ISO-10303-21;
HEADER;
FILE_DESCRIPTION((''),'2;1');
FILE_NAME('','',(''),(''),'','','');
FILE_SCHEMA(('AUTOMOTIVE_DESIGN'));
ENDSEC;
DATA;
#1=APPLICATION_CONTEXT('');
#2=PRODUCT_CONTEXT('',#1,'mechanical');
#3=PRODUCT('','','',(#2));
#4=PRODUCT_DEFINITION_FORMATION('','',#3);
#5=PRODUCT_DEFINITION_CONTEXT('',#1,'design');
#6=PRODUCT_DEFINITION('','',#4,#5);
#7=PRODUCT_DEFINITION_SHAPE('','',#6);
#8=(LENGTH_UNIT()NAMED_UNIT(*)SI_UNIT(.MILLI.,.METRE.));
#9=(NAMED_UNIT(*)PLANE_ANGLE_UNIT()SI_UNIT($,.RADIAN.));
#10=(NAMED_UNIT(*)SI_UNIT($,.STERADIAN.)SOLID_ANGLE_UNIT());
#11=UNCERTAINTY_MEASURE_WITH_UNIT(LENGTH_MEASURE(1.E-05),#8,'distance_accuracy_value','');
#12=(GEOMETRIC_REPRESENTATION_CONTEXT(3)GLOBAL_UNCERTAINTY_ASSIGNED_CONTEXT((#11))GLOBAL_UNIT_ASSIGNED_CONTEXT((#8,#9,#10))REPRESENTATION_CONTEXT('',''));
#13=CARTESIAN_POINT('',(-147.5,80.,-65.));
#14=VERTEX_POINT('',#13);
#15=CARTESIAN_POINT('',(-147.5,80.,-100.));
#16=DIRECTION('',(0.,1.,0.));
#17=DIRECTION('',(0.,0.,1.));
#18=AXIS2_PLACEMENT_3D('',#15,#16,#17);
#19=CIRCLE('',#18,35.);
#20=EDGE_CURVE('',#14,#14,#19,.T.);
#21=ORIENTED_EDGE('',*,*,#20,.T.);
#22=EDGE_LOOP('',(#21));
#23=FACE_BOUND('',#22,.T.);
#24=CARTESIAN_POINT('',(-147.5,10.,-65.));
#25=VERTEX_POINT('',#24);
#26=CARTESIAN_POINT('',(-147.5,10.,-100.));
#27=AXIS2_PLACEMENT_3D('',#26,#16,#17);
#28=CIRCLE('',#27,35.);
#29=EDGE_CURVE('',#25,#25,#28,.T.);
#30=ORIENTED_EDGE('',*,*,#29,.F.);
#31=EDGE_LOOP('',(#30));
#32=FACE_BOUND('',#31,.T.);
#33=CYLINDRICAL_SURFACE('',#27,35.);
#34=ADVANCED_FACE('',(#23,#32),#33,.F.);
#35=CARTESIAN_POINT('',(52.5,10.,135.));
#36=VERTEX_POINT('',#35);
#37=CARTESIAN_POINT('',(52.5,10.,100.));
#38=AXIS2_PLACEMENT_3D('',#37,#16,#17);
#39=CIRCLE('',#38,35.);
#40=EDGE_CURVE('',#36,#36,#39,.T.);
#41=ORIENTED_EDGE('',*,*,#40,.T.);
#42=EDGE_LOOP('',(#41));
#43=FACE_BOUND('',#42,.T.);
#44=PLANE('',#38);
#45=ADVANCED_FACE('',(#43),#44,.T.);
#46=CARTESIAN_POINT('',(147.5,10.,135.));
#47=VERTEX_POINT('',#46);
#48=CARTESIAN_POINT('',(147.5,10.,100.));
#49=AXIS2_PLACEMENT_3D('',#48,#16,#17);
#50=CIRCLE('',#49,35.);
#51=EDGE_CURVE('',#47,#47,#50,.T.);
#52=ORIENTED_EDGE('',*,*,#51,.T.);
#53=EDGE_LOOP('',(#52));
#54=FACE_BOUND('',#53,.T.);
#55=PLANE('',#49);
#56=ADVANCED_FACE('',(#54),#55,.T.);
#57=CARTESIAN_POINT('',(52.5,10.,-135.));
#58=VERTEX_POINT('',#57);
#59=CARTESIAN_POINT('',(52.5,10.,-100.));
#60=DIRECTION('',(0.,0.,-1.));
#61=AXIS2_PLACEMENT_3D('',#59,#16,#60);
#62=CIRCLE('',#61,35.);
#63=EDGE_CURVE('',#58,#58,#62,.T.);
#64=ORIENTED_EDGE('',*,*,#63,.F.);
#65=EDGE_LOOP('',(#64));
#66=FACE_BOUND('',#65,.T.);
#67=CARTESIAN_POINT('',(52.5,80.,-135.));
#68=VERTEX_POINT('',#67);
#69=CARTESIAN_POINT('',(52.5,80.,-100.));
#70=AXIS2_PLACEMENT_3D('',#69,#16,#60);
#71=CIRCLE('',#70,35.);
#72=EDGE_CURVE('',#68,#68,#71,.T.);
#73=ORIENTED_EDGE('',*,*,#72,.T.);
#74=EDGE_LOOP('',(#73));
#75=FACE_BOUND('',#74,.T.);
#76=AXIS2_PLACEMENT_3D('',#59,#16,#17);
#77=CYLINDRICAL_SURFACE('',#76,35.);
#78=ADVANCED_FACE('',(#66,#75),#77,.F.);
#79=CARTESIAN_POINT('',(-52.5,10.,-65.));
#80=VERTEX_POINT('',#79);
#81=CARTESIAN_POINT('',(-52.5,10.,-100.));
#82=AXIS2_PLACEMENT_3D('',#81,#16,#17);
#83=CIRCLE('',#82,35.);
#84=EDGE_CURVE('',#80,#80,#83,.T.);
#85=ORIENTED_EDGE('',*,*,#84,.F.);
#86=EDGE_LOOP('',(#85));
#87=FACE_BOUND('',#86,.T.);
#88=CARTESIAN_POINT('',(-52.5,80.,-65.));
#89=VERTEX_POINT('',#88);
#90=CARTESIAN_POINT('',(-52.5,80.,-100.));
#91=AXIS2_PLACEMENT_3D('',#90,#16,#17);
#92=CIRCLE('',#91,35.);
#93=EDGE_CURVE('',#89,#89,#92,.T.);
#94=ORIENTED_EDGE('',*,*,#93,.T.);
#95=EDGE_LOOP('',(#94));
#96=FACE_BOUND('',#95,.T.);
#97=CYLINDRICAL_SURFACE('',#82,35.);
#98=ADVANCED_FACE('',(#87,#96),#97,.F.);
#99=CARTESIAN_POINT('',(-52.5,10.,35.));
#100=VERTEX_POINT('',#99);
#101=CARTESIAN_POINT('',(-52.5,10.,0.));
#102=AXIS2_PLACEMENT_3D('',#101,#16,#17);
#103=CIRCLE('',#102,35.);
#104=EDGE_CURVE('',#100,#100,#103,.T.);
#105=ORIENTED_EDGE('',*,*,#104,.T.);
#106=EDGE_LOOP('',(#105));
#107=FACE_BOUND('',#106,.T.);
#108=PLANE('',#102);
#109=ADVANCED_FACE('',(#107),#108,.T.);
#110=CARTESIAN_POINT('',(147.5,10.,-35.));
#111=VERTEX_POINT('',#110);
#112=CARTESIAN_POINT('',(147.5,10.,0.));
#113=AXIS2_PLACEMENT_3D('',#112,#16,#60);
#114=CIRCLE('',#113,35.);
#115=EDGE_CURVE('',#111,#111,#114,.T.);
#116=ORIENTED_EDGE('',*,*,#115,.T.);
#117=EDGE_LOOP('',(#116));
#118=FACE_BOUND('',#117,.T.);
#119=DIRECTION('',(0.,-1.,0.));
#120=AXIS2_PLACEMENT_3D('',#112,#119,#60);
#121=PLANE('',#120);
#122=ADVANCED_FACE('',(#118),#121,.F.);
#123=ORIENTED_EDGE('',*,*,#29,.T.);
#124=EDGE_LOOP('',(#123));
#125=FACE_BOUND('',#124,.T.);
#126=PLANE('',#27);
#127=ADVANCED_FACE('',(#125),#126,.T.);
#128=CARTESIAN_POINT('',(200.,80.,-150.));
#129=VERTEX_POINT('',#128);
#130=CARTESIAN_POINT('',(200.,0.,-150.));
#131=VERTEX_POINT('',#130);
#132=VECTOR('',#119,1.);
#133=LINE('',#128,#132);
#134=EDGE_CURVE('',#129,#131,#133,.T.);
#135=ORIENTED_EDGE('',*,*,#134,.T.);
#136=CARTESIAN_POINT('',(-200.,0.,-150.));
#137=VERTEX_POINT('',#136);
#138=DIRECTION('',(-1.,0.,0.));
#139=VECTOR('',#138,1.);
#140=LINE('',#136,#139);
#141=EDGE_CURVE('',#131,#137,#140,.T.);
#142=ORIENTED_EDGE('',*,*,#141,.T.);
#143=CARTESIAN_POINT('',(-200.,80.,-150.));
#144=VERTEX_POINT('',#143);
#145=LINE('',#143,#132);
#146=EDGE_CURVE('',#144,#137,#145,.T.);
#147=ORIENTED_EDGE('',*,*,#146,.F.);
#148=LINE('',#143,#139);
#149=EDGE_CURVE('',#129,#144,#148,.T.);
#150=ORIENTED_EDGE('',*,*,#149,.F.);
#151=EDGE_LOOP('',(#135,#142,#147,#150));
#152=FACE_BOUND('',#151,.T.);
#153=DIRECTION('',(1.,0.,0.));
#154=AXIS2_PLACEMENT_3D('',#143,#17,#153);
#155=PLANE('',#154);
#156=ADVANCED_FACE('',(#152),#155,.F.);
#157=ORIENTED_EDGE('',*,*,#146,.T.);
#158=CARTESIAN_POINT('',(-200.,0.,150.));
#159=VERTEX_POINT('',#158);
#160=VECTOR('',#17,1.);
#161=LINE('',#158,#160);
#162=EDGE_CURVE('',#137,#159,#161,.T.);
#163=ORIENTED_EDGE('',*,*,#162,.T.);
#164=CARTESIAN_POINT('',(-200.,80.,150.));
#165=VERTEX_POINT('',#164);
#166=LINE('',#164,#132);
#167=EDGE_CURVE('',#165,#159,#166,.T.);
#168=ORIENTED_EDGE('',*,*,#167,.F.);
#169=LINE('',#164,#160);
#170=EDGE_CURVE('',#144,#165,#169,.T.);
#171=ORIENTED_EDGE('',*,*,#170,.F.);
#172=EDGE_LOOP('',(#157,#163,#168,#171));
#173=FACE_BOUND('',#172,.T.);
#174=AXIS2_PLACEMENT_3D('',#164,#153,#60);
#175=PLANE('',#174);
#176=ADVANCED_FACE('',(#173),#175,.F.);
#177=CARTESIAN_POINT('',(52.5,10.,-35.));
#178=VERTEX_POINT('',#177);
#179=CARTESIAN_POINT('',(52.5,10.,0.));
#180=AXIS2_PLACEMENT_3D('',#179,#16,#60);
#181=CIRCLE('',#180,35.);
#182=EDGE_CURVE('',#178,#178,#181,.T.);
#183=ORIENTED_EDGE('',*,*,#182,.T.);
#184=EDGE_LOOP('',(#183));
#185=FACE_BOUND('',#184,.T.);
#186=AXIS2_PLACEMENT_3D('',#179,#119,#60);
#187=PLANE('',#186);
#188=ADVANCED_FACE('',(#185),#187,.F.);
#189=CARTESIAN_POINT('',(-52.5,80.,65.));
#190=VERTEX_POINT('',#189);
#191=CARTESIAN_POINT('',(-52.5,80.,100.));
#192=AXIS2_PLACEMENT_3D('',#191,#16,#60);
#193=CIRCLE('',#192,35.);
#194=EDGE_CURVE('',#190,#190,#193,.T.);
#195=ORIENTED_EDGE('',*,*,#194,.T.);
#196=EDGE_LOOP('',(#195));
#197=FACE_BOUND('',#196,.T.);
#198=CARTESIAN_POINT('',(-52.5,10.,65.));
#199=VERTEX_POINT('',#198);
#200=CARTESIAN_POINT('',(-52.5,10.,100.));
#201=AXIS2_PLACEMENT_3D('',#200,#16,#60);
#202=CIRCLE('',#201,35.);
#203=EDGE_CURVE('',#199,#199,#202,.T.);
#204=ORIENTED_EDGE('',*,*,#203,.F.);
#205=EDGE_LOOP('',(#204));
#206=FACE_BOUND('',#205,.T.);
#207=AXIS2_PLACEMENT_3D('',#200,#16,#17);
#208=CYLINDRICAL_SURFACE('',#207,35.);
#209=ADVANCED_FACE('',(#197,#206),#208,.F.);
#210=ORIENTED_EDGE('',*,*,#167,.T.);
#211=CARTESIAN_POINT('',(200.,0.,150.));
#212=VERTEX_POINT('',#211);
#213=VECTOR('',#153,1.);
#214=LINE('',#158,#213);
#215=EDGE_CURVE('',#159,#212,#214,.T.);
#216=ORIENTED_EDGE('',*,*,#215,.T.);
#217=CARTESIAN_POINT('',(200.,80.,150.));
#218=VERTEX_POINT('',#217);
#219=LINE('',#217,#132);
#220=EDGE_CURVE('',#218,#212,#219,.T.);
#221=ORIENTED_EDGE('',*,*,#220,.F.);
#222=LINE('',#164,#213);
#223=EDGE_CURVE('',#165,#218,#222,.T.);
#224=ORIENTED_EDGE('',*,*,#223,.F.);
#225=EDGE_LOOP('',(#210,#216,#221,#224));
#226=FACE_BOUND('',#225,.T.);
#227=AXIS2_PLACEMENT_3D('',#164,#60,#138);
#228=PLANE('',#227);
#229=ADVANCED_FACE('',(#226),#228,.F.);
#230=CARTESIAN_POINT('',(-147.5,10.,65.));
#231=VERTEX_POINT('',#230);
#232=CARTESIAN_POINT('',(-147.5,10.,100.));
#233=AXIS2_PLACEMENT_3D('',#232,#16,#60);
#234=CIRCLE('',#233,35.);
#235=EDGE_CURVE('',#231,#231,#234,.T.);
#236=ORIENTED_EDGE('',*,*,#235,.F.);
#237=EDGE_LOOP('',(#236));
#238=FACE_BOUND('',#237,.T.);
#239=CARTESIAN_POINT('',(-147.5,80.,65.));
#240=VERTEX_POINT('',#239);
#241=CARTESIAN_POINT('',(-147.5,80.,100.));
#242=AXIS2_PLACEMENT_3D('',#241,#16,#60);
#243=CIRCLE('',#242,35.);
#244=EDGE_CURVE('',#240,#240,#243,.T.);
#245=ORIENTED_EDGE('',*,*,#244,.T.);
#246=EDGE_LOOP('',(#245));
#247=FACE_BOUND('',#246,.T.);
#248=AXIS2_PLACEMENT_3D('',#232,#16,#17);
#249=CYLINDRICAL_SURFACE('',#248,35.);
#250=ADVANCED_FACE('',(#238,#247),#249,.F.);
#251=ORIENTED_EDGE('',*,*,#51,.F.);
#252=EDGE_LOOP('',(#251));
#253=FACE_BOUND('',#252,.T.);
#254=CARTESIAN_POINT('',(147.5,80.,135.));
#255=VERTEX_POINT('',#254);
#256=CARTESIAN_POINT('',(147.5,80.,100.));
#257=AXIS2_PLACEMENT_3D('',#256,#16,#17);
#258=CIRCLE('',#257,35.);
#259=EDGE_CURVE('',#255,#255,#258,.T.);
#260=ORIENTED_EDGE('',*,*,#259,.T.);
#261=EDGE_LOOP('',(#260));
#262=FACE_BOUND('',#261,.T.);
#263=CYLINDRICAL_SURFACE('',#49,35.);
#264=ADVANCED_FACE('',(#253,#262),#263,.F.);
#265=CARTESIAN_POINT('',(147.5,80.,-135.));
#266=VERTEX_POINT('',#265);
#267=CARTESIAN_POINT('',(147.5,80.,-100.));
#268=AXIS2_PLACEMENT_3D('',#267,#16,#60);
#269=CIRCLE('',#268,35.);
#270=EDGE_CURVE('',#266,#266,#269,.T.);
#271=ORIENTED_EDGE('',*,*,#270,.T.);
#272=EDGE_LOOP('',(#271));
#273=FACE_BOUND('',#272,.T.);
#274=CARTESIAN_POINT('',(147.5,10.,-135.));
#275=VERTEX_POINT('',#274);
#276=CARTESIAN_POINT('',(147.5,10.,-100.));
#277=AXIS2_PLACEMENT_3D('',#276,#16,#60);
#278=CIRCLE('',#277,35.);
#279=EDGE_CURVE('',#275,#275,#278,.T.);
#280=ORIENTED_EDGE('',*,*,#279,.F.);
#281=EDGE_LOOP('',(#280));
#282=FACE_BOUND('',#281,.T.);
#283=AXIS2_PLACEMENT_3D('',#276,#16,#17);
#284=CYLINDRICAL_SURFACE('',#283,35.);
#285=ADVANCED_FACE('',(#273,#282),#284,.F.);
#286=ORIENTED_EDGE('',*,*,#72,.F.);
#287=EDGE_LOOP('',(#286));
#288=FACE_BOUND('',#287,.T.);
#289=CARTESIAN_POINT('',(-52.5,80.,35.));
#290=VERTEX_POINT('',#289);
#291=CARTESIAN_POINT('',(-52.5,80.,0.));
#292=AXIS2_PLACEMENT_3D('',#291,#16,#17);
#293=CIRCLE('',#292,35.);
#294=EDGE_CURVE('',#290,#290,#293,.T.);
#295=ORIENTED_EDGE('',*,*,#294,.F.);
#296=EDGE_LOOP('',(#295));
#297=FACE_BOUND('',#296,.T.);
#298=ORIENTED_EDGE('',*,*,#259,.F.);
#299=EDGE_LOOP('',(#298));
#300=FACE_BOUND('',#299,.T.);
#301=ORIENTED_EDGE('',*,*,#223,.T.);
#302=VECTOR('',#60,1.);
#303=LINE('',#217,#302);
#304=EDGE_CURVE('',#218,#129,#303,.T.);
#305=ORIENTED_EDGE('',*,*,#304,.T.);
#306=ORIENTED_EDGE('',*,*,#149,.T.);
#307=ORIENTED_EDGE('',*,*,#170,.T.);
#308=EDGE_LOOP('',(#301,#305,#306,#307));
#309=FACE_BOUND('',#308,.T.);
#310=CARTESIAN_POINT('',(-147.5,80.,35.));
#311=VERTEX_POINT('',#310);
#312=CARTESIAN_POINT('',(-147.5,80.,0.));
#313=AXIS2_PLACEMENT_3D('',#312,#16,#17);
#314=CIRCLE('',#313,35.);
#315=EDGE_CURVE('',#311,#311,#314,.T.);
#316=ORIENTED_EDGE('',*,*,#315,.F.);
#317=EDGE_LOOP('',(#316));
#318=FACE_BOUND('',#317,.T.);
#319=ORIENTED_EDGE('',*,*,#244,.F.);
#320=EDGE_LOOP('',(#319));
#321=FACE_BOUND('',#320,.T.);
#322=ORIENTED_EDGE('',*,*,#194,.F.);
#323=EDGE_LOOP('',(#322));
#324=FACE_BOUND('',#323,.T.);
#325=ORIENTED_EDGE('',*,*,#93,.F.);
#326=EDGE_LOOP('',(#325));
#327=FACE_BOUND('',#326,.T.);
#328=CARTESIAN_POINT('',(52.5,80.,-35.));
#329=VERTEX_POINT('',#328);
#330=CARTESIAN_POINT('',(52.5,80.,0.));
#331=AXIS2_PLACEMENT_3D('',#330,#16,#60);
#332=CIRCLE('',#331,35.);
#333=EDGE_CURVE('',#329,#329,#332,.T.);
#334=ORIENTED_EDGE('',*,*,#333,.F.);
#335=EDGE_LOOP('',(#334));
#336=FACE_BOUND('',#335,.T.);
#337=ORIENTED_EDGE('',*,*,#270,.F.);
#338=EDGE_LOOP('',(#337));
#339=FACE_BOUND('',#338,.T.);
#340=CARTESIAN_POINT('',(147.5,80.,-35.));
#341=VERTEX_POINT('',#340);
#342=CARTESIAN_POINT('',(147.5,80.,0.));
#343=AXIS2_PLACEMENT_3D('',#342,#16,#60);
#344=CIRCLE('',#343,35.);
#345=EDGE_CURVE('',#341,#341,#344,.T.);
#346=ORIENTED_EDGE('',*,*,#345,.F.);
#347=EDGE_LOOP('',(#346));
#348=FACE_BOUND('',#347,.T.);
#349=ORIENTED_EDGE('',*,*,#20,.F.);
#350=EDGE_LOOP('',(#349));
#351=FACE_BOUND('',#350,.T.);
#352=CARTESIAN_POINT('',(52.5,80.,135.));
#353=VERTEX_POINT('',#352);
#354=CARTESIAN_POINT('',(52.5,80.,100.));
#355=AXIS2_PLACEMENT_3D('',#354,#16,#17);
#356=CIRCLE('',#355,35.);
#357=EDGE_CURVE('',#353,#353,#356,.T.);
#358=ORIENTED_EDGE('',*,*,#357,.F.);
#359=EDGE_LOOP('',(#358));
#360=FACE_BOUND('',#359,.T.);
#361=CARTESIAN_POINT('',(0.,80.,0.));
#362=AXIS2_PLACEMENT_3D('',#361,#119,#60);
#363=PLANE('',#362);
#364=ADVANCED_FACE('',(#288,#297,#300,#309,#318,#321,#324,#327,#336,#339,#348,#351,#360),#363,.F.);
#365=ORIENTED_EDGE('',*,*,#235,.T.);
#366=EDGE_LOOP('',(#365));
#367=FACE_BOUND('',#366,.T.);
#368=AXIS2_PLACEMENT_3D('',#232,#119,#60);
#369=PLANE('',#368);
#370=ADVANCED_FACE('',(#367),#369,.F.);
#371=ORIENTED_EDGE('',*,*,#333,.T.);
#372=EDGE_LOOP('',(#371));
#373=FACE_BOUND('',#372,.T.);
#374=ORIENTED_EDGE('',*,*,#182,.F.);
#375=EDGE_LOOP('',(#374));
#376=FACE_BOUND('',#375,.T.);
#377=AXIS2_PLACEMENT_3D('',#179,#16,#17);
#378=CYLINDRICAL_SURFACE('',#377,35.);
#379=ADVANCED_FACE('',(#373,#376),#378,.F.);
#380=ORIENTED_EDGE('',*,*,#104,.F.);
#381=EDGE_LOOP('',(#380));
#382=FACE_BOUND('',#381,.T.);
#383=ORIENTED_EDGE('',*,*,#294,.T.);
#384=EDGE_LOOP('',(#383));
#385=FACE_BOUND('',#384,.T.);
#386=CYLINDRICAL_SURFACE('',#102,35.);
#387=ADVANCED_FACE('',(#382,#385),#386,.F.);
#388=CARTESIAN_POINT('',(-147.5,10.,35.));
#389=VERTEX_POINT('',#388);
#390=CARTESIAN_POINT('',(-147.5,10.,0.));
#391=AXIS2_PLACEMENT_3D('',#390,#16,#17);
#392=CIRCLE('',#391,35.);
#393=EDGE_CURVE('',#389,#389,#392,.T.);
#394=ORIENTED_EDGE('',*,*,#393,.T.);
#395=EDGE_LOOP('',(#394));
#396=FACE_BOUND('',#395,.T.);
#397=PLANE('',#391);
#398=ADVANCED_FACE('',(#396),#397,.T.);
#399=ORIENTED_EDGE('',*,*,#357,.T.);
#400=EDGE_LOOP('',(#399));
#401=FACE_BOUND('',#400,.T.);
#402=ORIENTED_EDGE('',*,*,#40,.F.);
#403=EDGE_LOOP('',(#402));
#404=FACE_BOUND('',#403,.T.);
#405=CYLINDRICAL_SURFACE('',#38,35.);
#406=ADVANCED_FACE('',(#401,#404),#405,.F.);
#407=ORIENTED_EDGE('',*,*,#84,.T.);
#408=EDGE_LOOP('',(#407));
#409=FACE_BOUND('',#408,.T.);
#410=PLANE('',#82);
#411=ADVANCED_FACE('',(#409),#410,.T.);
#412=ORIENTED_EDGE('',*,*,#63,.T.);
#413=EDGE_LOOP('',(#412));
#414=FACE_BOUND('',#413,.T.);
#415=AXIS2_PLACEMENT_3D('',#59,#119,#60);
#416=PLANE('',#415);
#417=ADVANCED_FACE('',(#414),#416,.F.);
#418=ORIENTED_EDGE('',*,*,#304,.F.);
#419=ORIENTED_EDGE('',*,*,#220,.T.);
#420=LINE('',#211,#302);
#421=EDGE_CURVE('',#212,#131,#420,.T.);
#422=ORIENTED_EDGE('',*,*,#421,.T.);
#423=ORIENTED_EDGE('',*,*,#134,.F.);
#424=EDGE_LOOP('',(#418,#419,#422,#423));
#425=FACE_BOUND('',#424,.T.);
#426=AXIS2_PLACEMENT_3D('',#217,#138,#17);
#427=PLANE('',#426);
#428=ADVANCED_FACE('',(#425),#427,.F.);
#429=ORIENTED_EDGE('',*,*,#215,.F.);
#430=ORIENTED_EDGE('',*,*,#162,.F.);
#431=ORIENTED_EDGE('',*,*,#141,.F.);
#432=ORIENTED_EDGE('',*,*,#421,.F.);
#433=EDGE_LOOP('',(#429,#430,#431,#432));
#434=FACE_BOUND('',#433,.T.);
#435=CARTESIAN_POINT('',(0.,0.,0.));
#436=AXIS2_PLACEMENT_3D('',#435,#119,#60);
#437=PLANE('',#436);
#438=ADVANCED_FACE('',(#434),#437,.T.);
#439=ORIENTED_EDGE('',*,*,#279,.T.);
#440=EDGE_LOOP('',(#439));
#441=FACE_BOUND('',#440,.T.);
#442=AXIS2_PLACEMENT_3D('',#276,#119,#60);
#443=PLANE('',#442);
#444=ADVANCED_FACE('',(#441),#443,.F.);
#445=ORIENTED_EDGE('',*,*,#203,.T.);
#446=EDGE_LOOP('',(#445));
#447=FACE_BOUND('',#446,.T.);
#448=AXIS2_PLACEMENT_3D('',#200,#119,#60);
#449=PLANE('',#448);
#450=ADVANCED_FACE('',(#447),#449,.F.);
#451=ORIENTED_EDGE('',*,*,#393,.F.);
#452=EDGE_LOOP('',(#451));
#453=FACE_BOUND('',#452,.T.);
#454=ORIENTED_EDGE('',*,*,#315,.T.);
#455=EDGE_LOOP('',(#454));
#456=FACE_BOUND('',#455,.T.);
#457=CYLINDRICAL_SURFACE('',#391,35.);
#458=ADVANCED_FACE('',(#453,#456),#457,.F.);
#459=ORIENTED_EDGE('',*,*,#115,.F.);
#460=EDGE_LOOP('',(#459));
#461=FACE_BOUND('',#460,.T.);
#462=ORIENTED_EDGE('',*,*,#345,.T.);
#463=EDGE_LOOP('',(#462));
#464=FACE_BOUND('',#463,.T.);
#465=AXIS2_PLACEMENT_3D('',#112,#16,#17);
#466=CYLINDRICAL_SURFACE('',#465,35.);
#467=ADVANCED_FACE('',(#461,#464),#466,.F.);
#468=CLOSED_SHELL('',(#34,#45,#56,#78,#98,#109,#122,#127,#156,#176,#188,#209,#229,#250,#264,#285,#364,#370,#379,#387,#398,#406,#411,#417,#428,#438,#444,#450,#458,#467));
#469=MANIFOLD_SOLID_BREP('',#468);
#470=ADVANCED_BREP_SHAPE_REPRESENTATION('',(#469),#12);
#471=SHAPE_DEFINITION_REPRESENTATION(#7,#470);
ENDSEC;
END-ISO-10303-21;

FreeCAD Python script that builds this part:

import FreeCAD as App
import Part
import Sketcher
from FreeCAD import Vector
Q = App.Units.Quantity

doc = App.newDocument("Part")
body = doc.addObject("PartDesign::Body", "Body")

# Sketch on XZ plane
sketch1 = body.newObject("Sketcher::SketchObject", "Sketch")
sketch1.AttachmentSupport = (doc.getObject("XZ_Plane"), [""])
sketch1.MapMode = "FlatFace"
sketch1.addGeometry(Part.LineSegment(Vector(-200, -150, 0), Vector(-200, 150, 0)), False)
sketch1.addGeometry(Part.LineSegment(Vector(-200, 150, 0), Vector(200, 150, 0)), False)
sketch1.addGeometry(Part.LineSegment(Vector(200, 150, 0), Vector(200, -150, 0)), False)
sketch1.addGeometry(Part.LineSegment(Vector(200, -150, 0), Vector(-200, -150, 0)), False)
sketch1.addConstraint(Sketcher.Constraint("Coincident", 0, 2, 1, 1))
sketch1.addConstraint(Sketcher.Constraint("Coincident", 1, 2, 2, 1))
sketch1.addConstraint(Sketcher.Constraint("Coincident", 2, 2, 3, 1))
sketch1.addConstraint(Sketcher.Constraint("Coincident", 3, 2, 0, 1))
sketch1.addConstraint(Sketcher.Constraint("Vertical", 0))
sketch1.addConstraint(Sketcher.Constraint("Horizontal", 1))
sketch1.addConstraint(Sketcher.Constraint("Vertical", 2))
sketch1.addConstraint(Sketcher.Constraint("Horizontal", 3))
sketch1.addConstraint(Sketcher.Constraint("Symmetric", 0, 2, 2, 2, -1, 1))
sketch1.addConstraint(Sketcher.Constraint("DistanceX", 1, 1, 1, 2, Q("400 mm")))
sketch1.addConstraint(Sketcher.Constraint("DistanceY", 0, 1, 0, 2, Q("300 mm")))
pad1 = body.newObject("PartDesign::Pad", "Pad")
pad1.Profile = sketch1
pad1.Length = 80
pad1.Reversed = True

# Sketch on XZ plane
sketch2 = body.newObject("Sketcher::SketchObject", "Sketch001")
sketch2.AttachmentSupport = (doc.getObject("XZ_Plane"), [""])
sketch2.MapMode = "FlatFace"
sketch2.AttachmentOffset = App.Placement(Vector(0, 0, -80), App.Rotation())
sketch2.addGeometry(Part.Circle(Vector(-148, -100, 0), Vector(0, 0, 1), 35), False)
sketch2.addGeometry(Part.Circle(Vector(-52, -100, 0), Vector(0, 0, 1), 35), False)
sketch2.addGeometry(Part.Circle(Vector(-148, 0, 0), Vector(0, 0, 1), 35), False)
sketch2.addGeometry(Part.Circle(Vector(-52, 0, 0), Vector(0, 0, 1), 35), False)
sketch2.addGeometry(Part.Circle(Vector(52, 0, 0), Vector(0, 0, 1), 35), False)
sketch2.addGeometry(Part.Circle(Vector(52, -100, 0), Vector(0, 0, 1), 35), False)
sketch2.addGeometry(Part.Circle(Vector(148, 0, 0), Vector(0, 0, 1), 35), False)
sketch2.addGeometry(Part.Circle(Vector(148, -100, 0), Vector(0, 0, 1), 35), False)
sketch2.addGeometry(Part.Circle(Vector(-52, 100, 0), Vector(0, 0, 1), 35), False)
sketch2.addGeometry(Part.Circle(Vector(-148, 100, 0), Vector(0, 0, 1), 35), False)
sketch2.addGeometry(Part.Circle(Vector(148, 100, 0), Vector(0, 0, 1), 35), False)
sketch2.addGeometry(Part.Circle(Vector(52, 100, 0), Vector(0, 0, 1), 35), False)
sketch2.addConstraint(Sketcher.Constraint("Equal", 0, 1))
sketch2.addConstraint(Sketcher.Constraint("Equal", 1, 2))
sketch2.addConstraint(Sketcher.Constraint("Equal", 2, 3))
sketch2.addConstraint(Sketcher.Constraint("Equal", 3, 4))
sketch2.addConstraint(Sketcher.Constraint("Equal", 4, 5))
sketch2.addConstraint(Sketcher.Constraint("Equal", 5, 6))
sketch2.addConstraint(Sketcher.Constraint("Equal", 6, 7))
sketch2.addConstraint(Sketcher.Constraint("Equal", 7, 8))
sketch2.addConstraint(Sketcher.Constraint("Equal", 8, 9))
sketch2.addConstraint(Sketcher.Constraint("Equal", 9, 10))
sketch2.addConstraint(Sketcher.Constraint("Equal", 10, 11))
sketch2.addConstraint(Sketcher.Constraint("Symmetric", 3, 3, 4, 3, -1, 1))
sketch2.addConstraint(Sketcher.Constraint("Symmetric", 2, 3, 6, 3, -1, 1))
sketch2.addConstraint(Sketcher.Constraint("Symmetric", 5, 3, 8, 3, -1, 1))
sketch2.addConstraint(Sketcher.Constraint("Symmetric", 7, 3, 9, 3, -1, 1))
sketch2.addConstraint(Sketcher.Constraint("Symmetric", 0, 3, 10, 3, -1, 1))
sketch2.addConstraint(Sketcher.Constraint("Symmetric", 1, 3, 11, 3, -1, 1))
sketch2.addConstraint(Sketcher.Constraint("Symmetric", 1, 3, 5, 3, -2))
sketch2.addConstraint(Sketcher.Constraint("Symmetric", 0, 3, 7, 3, -2))
sketch2.addConstraint(Sketcher.Constraint("PointOnObject", 2, 3, -1))
sketch2.addConstraint(Sketcher.Constraint("PointOnObject", 3, 3, -1))
sketch2.addConstraint(Sketcher.Constraint("Horizontal", 0, 3, 1, 3))
sketch2.addConstraint(Sketcher.Constraint("Vertical", 0, 3, 2, 3))
sketch2.addConstraint(Sketcher.Constraint("Vertical", 1, 3, 3, 3))
sketch2.addConstraint(Sketcher.Constraint("Diameter", 0, Q("70 mm")))
sketch2.addConstraint(Sketcher.Constraint("DistanceY", 0, 3, -1, 1, Q("100 mm")))
sketch2.addConstraint(Sketcher.Constraint("DistanceX", 0, 3, 1, 3, Q("95 mm")))
sketch2.addConstraint(Sketcher.Constraint("DistanceX", 3, 3, 4, 3, Q("105 mm")))
pocket1 = body.newObject("PartDesign::Pocket", "Pocket")
pocket1.Profile = sketch2
pocket1.Length = 70
pocket1.Reversed = True

doc.recompute()
